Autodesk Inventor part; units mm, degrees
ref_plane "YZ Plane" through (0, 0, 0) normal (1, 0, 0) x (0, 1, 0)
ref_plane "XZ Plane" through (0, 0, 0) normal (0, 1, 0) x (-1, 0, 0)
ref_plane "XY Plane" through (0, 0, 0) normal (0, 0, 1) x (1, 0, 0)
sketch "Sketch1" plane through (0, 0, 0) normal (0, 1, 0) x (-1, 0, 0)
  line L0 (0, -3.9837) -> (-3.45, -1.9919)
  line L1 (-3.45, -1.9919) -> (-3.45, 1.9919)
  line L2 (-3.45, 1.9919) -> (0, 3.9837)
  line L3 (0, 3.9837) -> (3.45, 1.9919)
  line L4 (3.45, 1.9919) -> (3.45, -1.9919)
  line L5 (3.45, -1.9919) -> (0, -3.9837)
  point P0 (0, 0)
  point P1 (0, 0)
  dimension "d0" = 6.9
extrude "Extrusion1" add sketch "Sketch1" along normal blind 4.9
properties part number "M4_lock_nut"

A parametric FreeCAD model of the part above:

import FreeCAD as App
import Part
import Sketcher

V = App.Vector
Q = App.Units.Quantity


def add_polygon(sketch, points):
    """Adds a closed chain of lines whose ends are joined by coincident constraints."""
    first, n = sketch.GeometryCount, len(points)
    for a, b in zip(points, points[1:] + points[:1]):
        sketch.addGeometry(Part.LineSegment(App.Vector(*a, 0), App.Vector(*b, 0)), False)
    for i in range(n):
        sketch.addConstraint(Sketcher.Constraint("Coincident", first + i, 2, first + (i + 1) % n, 1))

doc = App.newDocument("Part")
body = doc.addObject("PartDesign::Body", "Body")

sketch1 = doc.addObject("Sketcher::SketchObject", "Sketch")
body.addObject(sketch1)
sketch1.AttachmentSupport = (doc.XZ_Plane, [""])
sketch1.MapMode = "FlatFace"
add_polygon(sketch1, [(3.5, -2), (0, -4), (-3.5, -2), (-3.5, 2), (0, 4), (3.5, 2)])
sketch1.addConstraint([
    Sketcher.Constraint("Vertical", 2),
    Sketcher.Constraint("Vertical", 5),
    Sketcher.Constraint("Symmetric", 0, 2, 3, 2, -1, 1),
    Sketcher.Constraint("Symmetric", 1, 2, 4, 2, -1, 1),
    Sketcher.Constraint("PointOnObject", 0, 2, -2),
    Sketcher.Constraint("Parallel", 0, 3),
    Sketcher.Constraint("Horizontal", 2, 2, 4, 2),
    Sketcher.Constraint("DistanceX", 2, 2, 4, 2, 6.9),
    Sketcher.Constraint("Angle", 0, Q("-150.0007 deg")),
    Sketcher.Constraint("DistanceY", 2, 1, 2, 2, 3.9838),
])
pad1 = doc.addObject("PartDesign::Pad", "Pad")
body.addObject(pad1)
pad1.Profile = sketch1
pad1.Length = 4.9
pad1.Reversed = True

doc.recompute()
